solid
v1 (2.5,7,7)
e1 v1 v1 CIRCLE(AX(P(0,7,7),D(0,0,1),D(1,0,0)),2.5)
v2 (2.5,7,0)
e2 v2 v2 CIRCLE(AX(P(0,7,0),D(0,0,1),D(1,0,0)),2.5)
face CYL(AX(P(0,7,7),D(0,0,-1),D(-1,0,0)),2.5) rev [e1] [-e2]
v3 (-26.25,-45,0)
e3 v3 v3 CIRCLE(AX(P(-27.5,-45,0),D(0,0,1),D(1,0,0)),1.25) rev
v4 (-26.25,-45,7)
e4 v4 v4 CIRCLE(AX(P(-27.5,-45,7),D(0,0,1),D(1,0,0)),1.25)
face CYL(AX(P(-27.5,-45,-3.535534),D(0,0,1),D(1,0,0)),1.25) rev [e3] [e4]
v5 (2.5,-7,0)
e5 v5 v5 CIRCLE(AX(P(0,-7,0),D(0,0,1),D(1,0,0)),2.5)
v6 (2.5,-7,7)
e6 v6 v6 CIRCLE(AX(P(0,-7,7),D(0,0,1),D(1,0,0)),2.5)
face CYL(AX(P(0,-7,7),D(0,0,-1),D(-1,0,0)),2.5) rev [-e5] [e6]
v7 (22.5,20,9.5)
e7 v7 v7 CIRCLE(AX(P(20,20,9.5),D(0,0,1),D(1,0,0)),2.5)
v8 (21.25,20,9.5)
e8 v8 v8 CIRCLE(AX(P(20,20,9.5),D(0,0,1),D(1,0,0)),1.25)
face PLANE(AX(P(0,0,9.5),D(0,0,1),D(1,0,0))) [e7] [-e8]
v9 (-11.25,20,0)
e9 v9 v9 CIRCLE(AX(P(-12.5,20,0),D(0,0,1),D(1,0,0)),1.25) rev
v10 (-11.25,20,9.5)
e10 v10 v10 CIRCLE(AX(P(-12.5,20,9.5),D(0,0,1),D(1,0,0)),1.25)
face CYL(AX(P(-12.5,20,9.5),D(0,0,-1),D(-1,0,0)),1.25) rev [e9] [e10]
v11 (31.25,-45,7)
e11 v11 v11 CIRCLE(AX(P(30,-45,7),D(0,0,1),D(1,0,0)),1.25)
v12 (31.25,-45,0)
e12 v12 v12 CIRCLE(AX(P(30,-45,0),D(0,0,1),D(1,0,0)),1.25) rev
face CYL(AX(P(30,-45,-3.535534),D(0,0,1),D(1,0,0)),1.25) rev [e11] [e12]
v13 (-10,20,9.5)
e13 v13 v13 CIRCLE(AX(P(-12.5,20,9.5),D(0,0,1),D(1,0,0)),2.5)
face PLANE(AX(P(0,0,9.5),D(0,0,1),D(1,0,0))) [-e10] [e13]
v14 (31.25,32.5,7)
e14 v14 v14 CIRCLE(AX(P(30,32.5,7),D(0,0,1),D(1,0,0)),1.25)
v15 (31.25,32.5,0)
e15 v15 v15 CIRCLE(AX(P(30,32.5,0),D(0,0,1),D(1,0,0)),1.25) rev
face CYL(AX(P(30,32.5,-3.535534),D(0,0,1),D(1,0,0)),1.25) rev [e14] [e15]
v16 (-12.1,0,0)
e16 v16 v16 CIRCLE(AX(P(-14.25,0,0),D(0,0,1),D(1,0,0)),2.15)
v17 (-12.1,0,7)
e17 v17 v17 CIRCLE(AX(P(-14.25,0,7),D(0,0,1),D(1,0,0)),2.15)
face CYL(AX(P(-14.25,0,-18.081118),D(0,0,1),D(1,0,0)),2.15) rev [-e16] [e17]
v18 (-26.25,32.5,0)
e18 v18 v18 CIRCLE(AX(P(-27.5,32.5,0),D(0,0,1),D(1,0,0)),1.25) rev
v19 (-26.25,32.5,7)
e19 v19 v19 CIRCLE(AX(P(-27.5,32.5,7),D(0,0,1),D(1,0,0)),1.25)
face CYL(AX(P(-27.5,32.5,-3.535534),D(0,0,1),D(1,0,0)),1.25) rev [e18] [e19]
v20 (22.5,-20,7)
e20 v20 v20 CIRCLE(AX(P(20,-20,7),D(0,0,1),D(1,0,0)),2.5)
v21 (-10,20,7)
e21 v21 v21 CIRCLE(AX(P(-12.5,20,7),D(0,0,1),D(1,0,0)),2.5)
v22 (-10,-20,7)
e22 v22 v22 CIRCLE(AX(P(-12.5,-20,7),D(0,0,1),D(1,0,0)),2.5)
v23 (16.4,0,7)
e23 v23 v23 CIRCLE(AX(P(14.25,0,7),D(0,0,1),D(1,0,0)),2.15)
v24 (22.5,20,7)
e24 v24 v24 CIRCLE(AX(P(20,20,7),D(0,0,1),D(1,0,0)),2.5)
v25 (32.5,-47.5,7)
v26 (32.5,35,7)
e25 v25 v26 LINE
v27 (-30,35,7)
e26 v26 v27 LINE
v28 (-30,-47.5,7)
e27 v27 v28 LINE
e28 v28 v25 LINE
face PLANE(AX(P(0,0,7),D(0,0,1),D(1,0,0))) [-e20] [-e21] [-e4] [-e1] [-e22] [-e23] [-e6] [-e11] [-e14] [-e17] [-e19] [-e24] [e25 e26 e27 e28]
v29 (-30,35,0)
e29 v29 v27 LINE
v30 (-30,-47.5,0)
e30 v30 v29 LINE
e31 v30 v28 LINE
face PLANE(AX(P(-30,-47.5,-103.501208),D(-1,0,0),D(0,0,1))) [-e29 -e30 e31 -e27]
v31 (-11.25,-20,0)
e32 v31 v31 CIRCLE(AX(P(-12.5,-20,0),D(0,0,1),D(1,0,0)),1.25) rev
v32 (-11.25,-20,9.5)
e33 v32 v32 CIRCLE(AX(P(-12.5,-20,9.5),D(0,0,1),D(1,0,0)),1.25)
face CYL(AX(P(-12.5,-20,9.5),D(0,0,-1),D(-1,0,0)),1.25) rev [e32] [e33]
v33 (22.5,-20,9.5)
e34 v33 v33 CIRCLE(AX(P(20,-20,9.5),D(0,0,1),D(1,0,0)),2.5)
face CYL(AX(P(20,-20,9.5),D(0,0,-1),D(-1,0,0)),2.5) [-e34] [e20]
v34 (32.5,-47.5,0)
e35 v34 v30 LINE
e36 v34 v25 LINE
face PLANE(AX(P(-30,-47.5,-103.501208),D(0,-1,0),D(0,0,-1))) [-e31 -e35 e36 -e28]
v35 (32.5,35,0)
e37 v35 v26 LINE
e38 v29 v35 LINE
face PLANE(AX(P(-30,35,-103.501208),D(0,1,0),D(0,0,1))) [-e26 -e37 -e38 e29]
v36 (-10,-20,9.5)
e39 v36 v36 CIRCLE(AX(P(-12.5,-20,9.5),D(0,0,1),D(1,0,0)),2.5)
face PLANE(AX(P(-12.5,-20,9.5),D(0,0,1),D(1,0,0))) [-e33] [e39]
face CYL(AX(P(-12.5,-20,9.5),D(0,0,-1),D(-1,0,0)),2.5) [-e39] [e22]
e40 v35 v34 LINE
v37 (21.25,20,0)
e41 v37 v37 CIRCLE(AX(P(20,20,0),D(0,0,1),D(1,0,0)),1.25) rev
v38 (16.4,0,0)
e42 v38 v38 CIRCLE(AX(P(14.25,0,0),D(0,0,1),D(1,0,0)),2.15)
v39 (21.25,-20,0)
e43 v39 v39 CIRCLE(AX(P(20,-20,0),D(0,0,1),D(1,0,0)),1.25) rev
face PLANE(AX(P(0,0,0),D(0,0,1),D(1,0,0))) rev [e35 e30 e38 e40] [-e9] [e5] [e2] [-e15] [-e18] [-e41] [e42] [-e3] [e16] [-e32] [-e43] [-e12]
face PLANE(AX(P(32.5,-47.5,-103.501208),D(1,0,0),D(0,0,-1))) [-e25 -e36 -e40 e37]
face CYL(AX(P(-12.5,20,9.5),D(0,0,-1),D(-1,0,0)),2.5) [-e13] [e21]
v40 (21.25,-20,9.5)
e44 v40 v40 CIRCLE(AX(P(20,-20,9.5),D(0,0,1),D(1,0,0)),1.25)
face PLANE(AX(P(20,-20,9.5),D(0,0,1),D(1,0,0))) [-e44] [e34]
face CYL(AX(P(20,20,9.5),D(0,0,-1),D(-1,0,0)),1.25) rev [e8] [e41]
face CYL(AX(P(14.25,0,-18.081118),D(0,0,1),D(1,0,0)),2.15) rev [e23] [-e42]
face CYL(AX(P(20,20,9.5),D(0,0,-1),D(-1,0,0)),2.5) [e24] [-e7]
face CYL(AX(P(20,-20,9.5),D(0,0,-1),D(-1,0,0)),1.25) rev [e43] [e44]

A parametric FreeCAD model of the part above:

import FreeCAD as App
import Part
import Sketcher

V = App.Vector

doc = App.newDocument("Part")
params = doc.addObject("Spreadsheet::Sheet", "Params")
for row, (alias, value) in enumerate([
    ("sketch1_diameter", "4.3 mm"),
    ("pad1_length", "12 mm"),
    ("sketch2_diameter", "4.3 mm"),
    ("pad2_length", "12 mm"),
    ("sketch3_diameter", "5 mm"),
    ("sketch3_width", "35 mm"),
    ("sketch3_height", "34 mm"),
    ("pad3_length", "7 mm"),
    ("sketch4_diameter", "5 mm"),
    ("sketch4_diameter2", "4.3 mm"),
    ("sketch4_width", "52.5 mm"),
    ("sketch4_height", "72.5 mm"),
    ("pad4_length", "7 mm"),
    ("sketch5_diameter", "5 mm"),
    ("sketch5_diameter2", "2.5 mm"),
    ("pad5_length", "2.5 mm"),
    ("sketch6_diameter", "2.5 mm"),
    ("pocket1_length", "7 mm"),
    ("sketch7_diameter", "4.3 mm"),
    ("pocket2_length", "19 mm"),
    ("sketch8_width", "62.5 mm"),
    ("sketch8_width2", "52.5 mm"),
    ("sketch8_height", "82.5 mm"),
    ("sketch8_height2", "72.5 mm"),
    ("pad6_length", "7 mm"),
    ("sketch9_diameter", "2.5 mm"),
    ("pocket3_length", "7 mm"),
], start=1):
    params.set(f"A{row}", alias)
    params.set(f"B{row}", "=" + value)
    params.setAlias(f"B{row}", alias)

body = doc.addObject("PartDesign::Body", "Body")

sketch1 = body.newObject("Sketcher::SketchObject", "Sketch")
sketch1.AttachmentSupport = (doc.getObject("XY_Plane"), [""])
sketch1.MapMode = "FlatFace"
sketch1.addGeometry(Part.Circle(V(-14.2, 0, 0), V(0, 0, 1), 2.1), False)
sketch1.addConstraint([
    Sketcher.Constraint("PointOnObject", 0, 3, -1),
    Sketcher.Constraint("Diameter", 0, 4.3),
    Sketcher.Constraint("DistanceX", 0, 3, -1, 1, 14.25),
])
sketch1.setExpression("Constraints[1]", "Params.sketch1_diameter")
pad1 = body.newObject("PartDesign::Pad", "Pad")
pad1.Profile = sketch1
pad1.setExpression("Length", "Params.pad1_length")
pad1.Reversed = True
body2 = doc.addObject("PartDesign::Body", "Body001")

sketch2 = body2.newObject("Sketcher::SketchObject", "Sketch001")
sketch2.AttachmentSupport = (doc.getObject("XY_Plane001"), [""])
sketch2.MapMode = "FlatFace"
sketch2.addGeometry(Part.Circle(V(14.2, 0, 0), V(0, 0, 1), 2.1), False)
sketch2.addConstraint([
    Sketcher.Constraint("PointOnObject", 0, 3, -1),
    Sketcher.Constraint("Diameter", 0, 4.3),
    Sketcher.Constraint("DistanceX", -1, 1, 0, 3, 14.25),
])
sketch2.setExpression("Constraints[1]", "Params.sketch2_diameter")
pad2 = body2.newObject("PartDesign::Pad", "Pad001")
pad2.Profile = sketch2
pad2.setExpression("Length", "Params.pad2_length")
pad2.Reversed = True
body.AllowCompound = True
doc.recompute()

boolean = body.newObject("PartDesign::Boolean", "Boolean")
boolean.Type = "Fuse"
boolean.addObjects([body2])

sketch3 = body.newObject("Sketcher::SketchObject", "Sketch002")
sketch3.AttachmentSupport = (doc.getObject("XY_Plane"), [""])
sketch3.MapMode = "FlatFace"
sketch3.AttachmentOffset = App.Placement(V(0, 0, 7), App.Rotation())
sketch3.addGeometry([
    Part.LineSegment(V(-17.5, 17, 0), V(-17.5, -17, 0)),
    Part.LineSegment(V(-17.5, -17, 0), V(17.5, -17, 0)),
    Part.LineSegment(V(17.5, -17, 0), V(17.5, 17, 0)),
    Part.LineSegment(V(17.5, 17, 0), V(-17.5, 17, 0)),
    Part.Circle(V(0, -7, 0), V(0, 0, 1), 2.5),
    Part.Circle(V(0, 7, 0), V(0, 0, 1), 2.5),
], False)
sketch3.addConstraint([
    Sketcher.Constraint("Coincident", 0, 2, 1, 1),
    Sketcher.Constraint("Coincident", 1, 2, 2, 1),
    Sketcher.Constraint("Coincident", 2, 2, 3, 1),
    Sketcher.Constraint("Coincident", 3, 2, 0, 1),
    Sketcher.Constraint("Vertical", 0),
    Sketcher.Constraint("Horizontal", 1),
    Sketcher.Constraint("Vertical", 2),
    Sketcher.Constraint("Horizontal", 3),
    Sketcher.Constraint("Equal", 4, 5),
    Sketcher.Constraint("Symmetric", 4, 3, 5, 3, -1, 1),
    Sketcher.Constraint("Symmetric", 0, 2, 2, 2, -1, 1),
    Sketcher.Constraint("PointOnObject", 4, 3, -2),
    Sketcher.Constraint("Diameter", 4, 5.0),
    Sketcher.Constraint("DistanceX", 1, 1, 1, 2, 35.0),
    Sketcher.Constraint("DistanceY", 0, 2, 0, 1, 34.0),
    Sketcher.Constraint("DistanceY", 4, 3, -1, 1, 7.0),
])
sketch3.setExpression("Constraints[12]", "Params.sketch3_diameter")
sketch3.setExpression("Constraints[13]", "Params.sketch3_width")
sketch3.setExpression("Constraints[14]", "Params.sketch3_height")
pad3 = body.newObject("PartDesign::Pad", "Pad002")
pad3.Profile = sketch3
pad3.setExpression("Length", "Params.pad3_length")
pad3.Reversed = True

sketch4 = body.newObject("Sketcher::SketchObject", "Sketch003")
sketch4.AttachmentSupport = (doc.getObject("XY_Plane"), [""])
sketch4.MapMode = "FlatFace"
sketch4.AttachmentOffset = App.Placement(V(0, 0, 7), App.Rotation())
sketch4.addGeometry([
    Part.LineSegment(V(-25, 30, 0), V(-25, -42.5, 0)),
    Part.LineSegment(V(-25, -42.5, 0), V(27.5, -42.5, 0)),
    Part.LineSegment(V(27.5, -42.5, 0), V(27.5, 30, 0)),
    Part.LineSegment(V(27.5, 30, 0), V(-25, 30, 0)),
    Part.Circle(V(0, -7, 0), V(0, 0, 1), 2.5),
    Part.Circle(V(-14.2, 0, 0), V(0, 0, 1), 2.1),
    Part.Circle(V(14.2, 0, 0), V(0, 0, 1), 2.1),
    Part.Circle(V(0, 7, 0), V(0, 0, 1), 2.5),
], False)
sketch4.addConstraint([
    Sketcher.Constraint("Coincident", 0, 2, 1, 1),
    Sketcher.Constraint("Coincident", 1, 2, 2, 1),
    Sketcher.Constraint("Coincident", 2, 2, 3, 1),
    Sketcher.Constraint("Coincident", 3, 2, 0, 1),
    Sketcher.Constraint("Vertical", 0),
    Sketcher.Constraint("Horizontal", 1),
    Sketcher.Constraint("Vertical", 2),
    Sketcher.Constraint("Horizontal", 3),
    Sketcher.Constraint("Equal", 5, 6),
    Sketcher.Constraint("Equal", 4, 7),
    Sketcher.Constraint("Symmetric", 5, 3, 6, 3, -1, 1),
    Sketcher.Constraint("Symmetric", 4, 3, 7, 3, -1, 1),
    Sketcher.Constraint("PointOnObject", 4, 3, -2),
    Sketcher.Constraint("PointOnObject", 5, 3, -1),
    Sketcher.Constraint("Diameter", 4, 5.0),
    Sketcher.Constraint("Diameter", 5, 4.3),
    Sketcher.Constraint("DistanceX", 1, 1, 1, 2, 52.5),
    Sketcher.Constraint("DistanceY", 0, 2, 0, 1, 72.5),
    Sketcher.Constraint("DistanceY", 4, 3, -1, 1, 7.0),
    Sketcher.Constraint("DistanceX", 0, 2, -1, 1, 25.0),
    Sketcher.Constraint("DistanceY", -1, 1, 2, 2, 30.0),
    Sketcher.Constraint("DistanceX", 5, 3, 6, 3, 28.5),
])
sketch4.setExpression("Constraints[14]", "Params.sketch4_diameter")
sketch4.setExpression("Constraints[15]", "Params.sketch4_diameter2")
sketch4.setExpression("Constraints[16]", "Params.sketch4_width")
sketch4.setExpression("Constraints[17]", "Params.sketch4_height")
pad4 = body.newObject("PartDesign::Pad", "Pad003")
pad4.Profile = sketch4
pad4.setExpression("Length", "Params.pad4_length")
pad4.Reversed = True

sketch5 = body.newObject("Sketcher::SketchObject", "Sketch004")
sketch5.AttachmentSupport = (doc.getObject("XY_Plane"), [""])
sketch5.MapMode = "FlatFace"
sketch5.AttachmentOffset = App.Placement(V(0, 0, 7), App.Rotation())
sketch5.addGeometry([
    Part.Circle(V(-12.5, -20, 0), V(0, 0, 1), 2.5),
    Part.Circle(V(-12.5, -20, 0), V(0, 0, 1), 1.2),
    Part.Circle(V(-12.5, 20, 0), V(0, 0, 1), 2.5),
    Part.Circle(V(-12.5, 20, 0), V(0, 0, 1), 1.2),
    Part.Circle(V(20, 20, 0), V(0, 0, 1), 2.5),
    Part.Circle(V(20, 20, 0), V(0, 0, 1), 1.2),
    Part.Circle(V(20, -20, 0), V(0, 0, 1), 2.5),
    Part.Circle(V(20, -20, 0), V(0, 0, 1), 1.2),
], False)
sketch5.addConstraint([
    Sketcher.Constraint("Coincident", 1, 3, 0, 3),
    Sketcher.Constraint("Coincident", 3, 3, 2, 3),
    Sketcher.Constraint("Coincident", 5, 3, 4, 3),
    Sketcher.Constraint("Coincident", 7, 3, 6, 3),
    Sketcher.Constraint("Equal", 0, 2),
    Sketcher.Constraint("Equal", 1, 3),
    Sketcher.Constraint("Equal", 2, 4),
    Sketcher.Constraint("Equal", 3, 5),
    Sketcher.Constraint("Equal", 4, 6),
    Sketcher.Constraint("Equal", 5, 7),
    Sketcher.Constraint("Symmetric", 0, 3, 2, 3, -1),
    Sketcher.Constraint("Symmetric", 4, 3, 6, 3, -1),
    Sketcher.Constraint("Horizontal", 3, 3, 4, 3),
    Sketcher.Constraint("Diameter", 0, 5.0),
    Sketcher.Constraint("Diameter", 1, 2.5),
    Sketcher.Constraint("DistanceY", 0, 3, -1, 1, 20.0),
    Sketcher.Constraint("DistanceX", -1, 1, 4, 3, 20.0),
    Sketcher.Constraint("DistanceX", 0, 3, -1, 1, 12.5),
])
sketch5.setExpression("Constraints[13]", "Params.sketch5_diameter")
sketch5.setExpression("Constraints[14]", "Params.sketch5_diameter2")
pad5 = body.newObject("PartDesign::Pad", "Pad004")
pad5.Profile = sketch5
pad5.setExpression("Length", "Params.pad5_length")

sketch6 = body.newObject("Sketcher::SketchObject", "Sketch005")
sketch6.AttachmentSupport = (doc.getObject("XY_Plane"), [""])
sketch6.MapMode = "FlatFace"
sketch6.addGeometry([
    Part.Circle(V(-12.5, -20, 0), V(0, 0, 1), 1.2),
    Part.Circle(V(20, 20, 0), V(0, 0, 1), 1.2),
    Part.Circle(V(20, -20, 0), V(0, 0, 1), 1.2),
    Part.Circle(V(-12.5, 20, 0), V(0, 0, 1), 1.2),
], False)
sketch6.addConstraint([
    Sketcher.Constraint("Equal", 0, 1),
    Sketcher.Constraint("Equal", 1, 2),
    Sketcher.Constraint("Equal", 2, 3),
    Sketcher.Constraint("Symmetric", 1, 3, 2, 3, -1),
    Sketcher.Constraint("Symmetric", 0, 3, 3, 3, -1),
    Sketcher.Constraint("Horizontal", 0, 3, 2, 3),
    Sketcher.Constraint("Diameter", 0, 2.5),
    Sketcher.Constraint("DistanceY", 0, 3, -1, 1, 20.0),
    Sketcher.Constraint("DistanceX", -1, 1, 1, 3, 20.0),
    Sketcher.Constraint("DistanceX", 0, 3, -1, 1, 12.5),
])
sketch6.setExpression("Constraints[6]", "Params.sketch6_diameter")
pocket1 = body.newObject("PartDesign::Pocket", "Pocket")
pocket1.Profile = sketch6
pocket1.setExpression("Length", "Params.pocket1_length")
pocket1.Reversed = True

sketch7 = body.newObject("Sketcher::SketchObject", "Sketch006")
sketch7.AttachmentSupport = (doc.getObject("XY_Plane"), [""])
sketch7.MapMode = "FlatFace"
sketch7.AttachmentOffset = App.Placement(V(0, 0, 7), App.Rotation())
sketch7.addGeometry([
    Part.Circle(V(-14.2, 0, 0), V(0, 0, 1), 2.1),
    Part.Circle(V(14.2, 0, 0), V(0, 0, 1), 2.1),
], False)
sketch7.addConstraint([
    Sketcher.Constraint("Equal", 0, 1),
    Sketcher.Constraint("Symmetric", 0, 3, 1, 3, -1, 1),
    Sketcher.Constraint("PointOnObject", 0, 3, -1),
    Sketcher.Constraint("Diameter", 0, 4.3),
    Sketcher.Constraint("DistanceX", 0, 3, 1, 3, 28.5),
])
sketch7.setExpression("Constraints[3]", "Params.sketch7_diameter")
pocket2 = body.newObject("PartDesign::Pocket", "Pocket001")
pocket2.Profile = sketch7
pocket2.setExpression("Length", "Params.pocket2_length")

sketch8 = body.newObject("Sketcher::SketchObject", "Sketch007")
sketch8.AttachmentSupport = (doc.getObject("XY_Plane"), [""])
sketch8.MapMode = "FlatFace"
sketch8.AttachmentOffset = App.Placement(V(0, 0, 7), App.Rotation())
sketch8.addGeometry([
    Part.LineSegment(V(-30, 35, 0), V(-30, -48, 0)),
    Part.LineSegment(V(-30, -48, 0), V(32, -48, 0)),
    Part.LineSegment(V(32, -48, 0), V(32, 35, 0)),
    Part.LineSegment(V(32, 35, 0), V(-30, 35, 0)),
    Part.LineSegment(V(28, -42, 0), V(-25, -42, 0)),
    Part.LineSegment(V(-25, -42, 0), V(-25, 30, 0)),
    Part.LineSegment(V(-25, 30, 0), V(28, 30, 0)),
    Part.LineSegment(V(28, 30, 0), V(28, -42, 0)),
], False)
sketch8.addConstraint([
    Sketcher.Constraint("Coincident", 0, 2, 1, 1),
    Sketcher.Constraint("Coincident", 1, 2, 2, 1),
    Sketcher.Constraint("Coincident", 2, 2, 3, 1),
    Sketcher.Constraint("Coincident", 3, 2, 0, 1),
    Sketcher.Constraint("Coincident", 4, 2, 5, 1),
    Sketcher.Constraint("Coincident", 5, 2, 6, 1),
    Sketcher.Constraint("Coincident", 6, 2, 7, 1),
    Sketcher.Constraint("Coincident", 7, 2, 4, 1),
    Sketcher.Constraint("Vertical", 0),
    Sketcher.Constraint("Horizontal", 1),
    Sketcher.Constraint("Vertical", 2),
    Sketcher.Constraint("Horizontal", 3),
    Sketcher.Constraint("Horizontal", 4),
    Sketcher.Constraint("Vertical", 5),
    Sketcher.Constraint("Horizontal", 6),
    Sketcher.Constraint("Vertical", 7),
    Sketcher.Constraint("DistanceX", 1, 1, 1, 2, 62.5),
    Sketcher.Constraint("DistanceX", 4, 2, 4, 1, 52.5),
    Sketcher.Constraint("DistanceY", 0, 2, 0, 1, 82.5),
    Sketcher.Constraint("DistanceY", 5, 1, 5, 2, 72.5),
    Sketcher.Constraint("DistanceX", 0, 2, -1, 1, 30.0),
    Sketcher.Constraint("DistanceY", -1, 1, 2, 2, 35.0),
    Sketcher.Constraint("DistanceX", 4, 2, -1, 1, 25.0),
    Sketcher.Constraint("DistanceY", -1, 1, 5, 2, 30.0),
])
sketch8.setExpression("Constraints[16]", "Params.sketch8_width")
sketch8.setExpression("Constraints[17]", "Params.sketch8_width2")
sketch8.setExpression("Constraints[18]", "Params.sketch8_height")
sketch8.setExpression("Constraints[19]", "Params.sketch8_height2")
pad6 = body.newObject("PartDesign::Pad", "Pad005")
pad6.Profile = sketch8
pad6.setExpression("Length", "Params.pad6_length")
pad6.Reversed = True

sketch9 = body.newObject("Sketcher::SketchObject", "Sketch008")
sketch9.AttachmentSupport = (doc.getObject("XY_Plane"), [""])
sketch9.MapMode = "FlatFace"
sketch9.AttachmentOffset = App.Placement(V(0, 0, 7), App.Rotation())
sketch9.addGeometry([
    Part.Circle(V(-27.5, 32.5, 0), V(0, 0, 1), 1.2),
    Part.Circle(V(-27.5, -45, 0), V(0, 0, 1), 1.2),
    Part.Circle(V(30, -45, 0), V(0, 0, 1), 1.2),
    Part.Circle(V(30, 32.5, 0), V(0, 0, 1), 1.2),
], False)
sketch9.addConstraint([
    Sketcher.Constraint("Equal", 0, 1),
    Sketcher.Constraint("Equal", 1, 2),
    Sketcher.Constraint("Equal", 2, 3),
    Sketcher.Constraint("Horizontal", 1, 3, 2, 3),
    Sketcher.Constraint("Horizontal", 0, 3, 3, 3),
    Sketcher.Constraint("Vertical", 0, 3, 1, 3),
    Sketcher.Constraint("Vertical", 2, 3, 3, 3),
    Sketcher.Constraint("Diameter", 0, 2.5),
    Sketcher.Constraint("DistanceY", 1, 3, -1, 1, 45.0),
    Sketcher.Constraint("DistanceX", -1, 1, 2, 3, 30.0),
    Sketcher.Constraint("DistanceX", 0, 3, -1, 1, 27.5),
    Sketcher.Constraint("DistanceY", -1, 1, 0, 3, 32.5),
])
sketch9.setExpression("Constraints[7]", "Params.sketch9_diameter")
pocket3 = body.newObject("PartDesign::Pocket", "Pocket002")
pocket3.Profile = sketch9
pocket3.setExpression("Length", "Params.pocket3_length")

doc.recompute()
